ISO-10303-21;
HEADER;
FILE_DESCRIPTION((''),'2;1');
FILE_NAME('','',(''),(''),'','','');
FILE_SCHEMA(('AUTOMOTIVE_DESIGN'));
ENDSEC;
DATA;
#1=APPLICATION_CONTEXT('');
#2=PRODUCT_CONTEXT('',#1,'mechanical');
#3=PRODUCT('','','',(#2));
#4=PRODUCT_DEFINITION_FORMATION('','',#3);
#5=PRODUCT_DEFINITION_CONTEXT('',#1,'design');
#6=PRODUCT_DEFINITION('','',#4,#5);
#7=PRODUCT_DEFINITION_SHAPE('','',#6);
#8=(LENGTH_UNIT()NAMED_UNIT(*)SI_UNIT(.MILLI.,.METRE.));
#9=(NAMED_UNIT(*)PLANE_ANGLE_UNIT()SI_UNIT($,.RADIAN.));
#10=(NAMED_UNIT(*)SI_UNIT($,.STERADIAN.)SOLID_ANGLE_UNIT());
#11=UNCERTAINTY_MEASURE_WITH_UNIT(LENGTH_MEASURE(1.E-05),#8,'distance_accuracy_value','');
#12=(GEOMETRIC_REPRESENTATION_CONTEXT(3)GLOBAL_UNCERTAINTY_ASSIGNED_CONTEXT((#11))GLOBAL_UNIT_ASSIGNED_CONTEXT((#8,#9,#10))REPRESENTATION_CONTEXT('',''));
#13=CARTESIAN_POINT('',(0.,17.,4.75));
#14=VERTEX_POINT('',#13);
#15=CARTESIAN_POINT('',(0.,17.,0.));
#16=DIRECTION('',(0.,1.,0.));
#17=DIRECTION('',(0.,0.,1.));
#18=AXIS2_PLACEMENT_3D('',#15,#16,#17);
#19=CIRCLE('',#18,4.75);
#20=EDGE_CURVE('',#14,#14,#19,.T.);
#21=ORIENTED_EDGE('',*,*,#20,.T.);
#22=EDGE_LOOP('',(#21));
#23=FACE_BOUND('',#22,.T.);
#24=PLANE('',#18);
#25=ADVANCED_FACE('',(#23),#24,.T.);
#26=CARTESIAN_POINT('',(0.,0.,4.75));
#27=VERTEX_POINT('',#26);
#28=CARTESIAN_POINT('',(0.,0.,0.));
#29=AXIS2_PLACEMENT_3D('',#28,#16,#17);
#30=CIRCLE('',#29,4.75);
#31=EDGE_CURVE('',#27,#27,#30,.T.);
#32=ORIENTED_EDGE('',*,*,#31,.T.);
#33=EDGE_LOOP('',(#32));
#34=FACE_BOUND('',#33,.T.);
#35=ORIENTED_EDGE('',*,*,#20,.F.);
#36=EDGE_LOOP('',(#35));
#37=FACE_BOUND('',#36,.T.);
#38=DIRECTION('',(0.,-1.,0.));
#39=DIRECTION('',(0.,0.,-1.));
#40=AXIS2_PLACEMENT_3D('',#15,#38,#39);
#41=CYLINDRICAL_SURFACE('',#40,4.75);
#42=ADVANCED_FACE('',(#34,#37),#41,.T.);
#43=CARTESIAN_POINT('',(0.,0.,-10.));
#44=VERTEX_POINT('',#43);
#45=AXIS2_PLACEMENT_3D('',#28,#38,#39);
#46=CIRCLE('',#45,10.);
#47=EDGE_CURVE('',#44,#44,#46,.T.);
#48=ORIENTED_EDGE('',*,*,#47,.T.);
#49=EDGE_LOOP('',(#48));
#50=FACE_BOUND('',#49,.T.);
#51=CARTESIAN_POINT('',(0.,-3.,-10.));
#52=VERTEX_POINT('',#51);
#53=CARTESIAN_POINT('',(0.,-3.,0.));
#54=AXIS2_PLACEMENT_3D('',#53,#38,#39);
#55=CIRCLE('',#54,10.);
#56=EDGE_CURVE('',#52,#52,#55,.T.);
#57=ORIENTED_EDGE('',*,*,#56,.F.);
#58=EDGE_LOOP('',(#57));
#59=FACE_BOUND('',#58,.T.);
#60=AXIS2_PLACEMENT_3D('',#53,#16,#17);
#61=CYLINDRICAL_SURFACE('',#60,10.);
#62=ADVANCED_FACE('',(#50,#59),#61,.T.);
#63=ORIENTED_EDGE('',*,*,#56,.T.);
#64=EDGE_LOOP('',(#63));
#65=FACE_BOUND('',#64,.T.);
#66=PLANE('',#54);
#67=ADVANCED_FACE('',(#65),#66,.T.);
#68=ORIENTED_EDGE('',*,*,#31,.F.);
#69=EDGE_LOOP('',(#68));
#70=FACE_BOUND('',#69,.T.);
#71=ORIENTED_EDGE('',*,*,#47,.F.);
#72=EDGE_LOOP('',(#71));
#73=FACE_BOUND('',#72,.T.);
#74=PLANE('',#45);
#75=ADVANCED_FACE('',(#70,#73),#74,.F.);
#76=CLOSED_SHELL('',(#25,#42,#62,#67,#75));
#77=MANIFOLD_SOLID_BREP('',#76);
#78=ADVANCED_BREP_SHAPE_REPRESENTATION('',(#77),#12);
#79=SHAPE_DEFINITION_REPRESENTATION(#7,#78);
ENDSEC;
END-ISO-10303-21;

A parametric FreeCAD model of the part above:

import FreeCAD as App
import Part
import Sketcher

V = App.Vector
Q = App.Units.Quantity

doc = App.newDocument("Part")
params = doc.addObject("Spreadsheet::Sheet", "Params")
for row, (alias, value) in enumerate([
    ("sketch1_diameter", "9.5 mm"),
    ("pad1_length", "17 mm"),
    ("sketch2_diameter", "20 mm"),
    ("pad2_length", "3 mm"),
], start=1):
    params.set(f"A{row}", alias)
    params.set(f"B{row}", "=" + value)
    params.setAlias(f"B{row}", alias)

body = doc.addObject("PartDesign::Body", "Body")

sketch1 = doc.addObject("Sketcher::SketchObject", "Sketch")
body.addObject(sketch1)
sketch1.AttachmentSupport = (doc.XZ_Plane, [""])
sketch1.MapMode = "FlatFace"
sketch1.addGeometry(Part.Circle(V(0, 0, 0), V(0, 0, 1), 4.8), False)
sketch1.addConstraint([
    Sketcher.Constraint("Coincident", 0, 3, -1, 1),
    Sketcher.Constraint("Diameter", 0, Q("9.5 mm")),
])
sketch1.setExpression("Constraints[1]", "Params.sketch1_diameter")
pad1 = doc.addObject("PartDesign::Pad", "Pad")
body.addObject(pad1)
pad1.Profile = sketch1
pad1.setExpression("Length", "Params.pad1_length")
pad1.Reversed = True

sketch2 = doc.addObject("Sketcher::SketchObject", "Sketch001")
body.addObject(sketch2)
sketch2.AttachmentSupport = (doc.XZ_Plane, [""])
sketch2.MapMode = "FlatFace"
sketch2.addGeometry(Part.Circle(V(0, 0, 0), V(0, 0, 1), 10), False)
sketch2.addConstraint([
    Sketcher.Constraint("Coincident", 0, 3, -1, 1),
    Sketcher.Constraint("Diameter", 0, Q("20 mm")),
])
sketch2.setExpression("Constraints[1]", "Params.sketch2_diameter")
pad2 = doc.addObject("PartDesign::Pad", "Pad001")
body.addObject(pad2)
pad2.Profile = sketch2
pad2.setExpression("Length", "Params.pad2_length")

doc.recompute()
